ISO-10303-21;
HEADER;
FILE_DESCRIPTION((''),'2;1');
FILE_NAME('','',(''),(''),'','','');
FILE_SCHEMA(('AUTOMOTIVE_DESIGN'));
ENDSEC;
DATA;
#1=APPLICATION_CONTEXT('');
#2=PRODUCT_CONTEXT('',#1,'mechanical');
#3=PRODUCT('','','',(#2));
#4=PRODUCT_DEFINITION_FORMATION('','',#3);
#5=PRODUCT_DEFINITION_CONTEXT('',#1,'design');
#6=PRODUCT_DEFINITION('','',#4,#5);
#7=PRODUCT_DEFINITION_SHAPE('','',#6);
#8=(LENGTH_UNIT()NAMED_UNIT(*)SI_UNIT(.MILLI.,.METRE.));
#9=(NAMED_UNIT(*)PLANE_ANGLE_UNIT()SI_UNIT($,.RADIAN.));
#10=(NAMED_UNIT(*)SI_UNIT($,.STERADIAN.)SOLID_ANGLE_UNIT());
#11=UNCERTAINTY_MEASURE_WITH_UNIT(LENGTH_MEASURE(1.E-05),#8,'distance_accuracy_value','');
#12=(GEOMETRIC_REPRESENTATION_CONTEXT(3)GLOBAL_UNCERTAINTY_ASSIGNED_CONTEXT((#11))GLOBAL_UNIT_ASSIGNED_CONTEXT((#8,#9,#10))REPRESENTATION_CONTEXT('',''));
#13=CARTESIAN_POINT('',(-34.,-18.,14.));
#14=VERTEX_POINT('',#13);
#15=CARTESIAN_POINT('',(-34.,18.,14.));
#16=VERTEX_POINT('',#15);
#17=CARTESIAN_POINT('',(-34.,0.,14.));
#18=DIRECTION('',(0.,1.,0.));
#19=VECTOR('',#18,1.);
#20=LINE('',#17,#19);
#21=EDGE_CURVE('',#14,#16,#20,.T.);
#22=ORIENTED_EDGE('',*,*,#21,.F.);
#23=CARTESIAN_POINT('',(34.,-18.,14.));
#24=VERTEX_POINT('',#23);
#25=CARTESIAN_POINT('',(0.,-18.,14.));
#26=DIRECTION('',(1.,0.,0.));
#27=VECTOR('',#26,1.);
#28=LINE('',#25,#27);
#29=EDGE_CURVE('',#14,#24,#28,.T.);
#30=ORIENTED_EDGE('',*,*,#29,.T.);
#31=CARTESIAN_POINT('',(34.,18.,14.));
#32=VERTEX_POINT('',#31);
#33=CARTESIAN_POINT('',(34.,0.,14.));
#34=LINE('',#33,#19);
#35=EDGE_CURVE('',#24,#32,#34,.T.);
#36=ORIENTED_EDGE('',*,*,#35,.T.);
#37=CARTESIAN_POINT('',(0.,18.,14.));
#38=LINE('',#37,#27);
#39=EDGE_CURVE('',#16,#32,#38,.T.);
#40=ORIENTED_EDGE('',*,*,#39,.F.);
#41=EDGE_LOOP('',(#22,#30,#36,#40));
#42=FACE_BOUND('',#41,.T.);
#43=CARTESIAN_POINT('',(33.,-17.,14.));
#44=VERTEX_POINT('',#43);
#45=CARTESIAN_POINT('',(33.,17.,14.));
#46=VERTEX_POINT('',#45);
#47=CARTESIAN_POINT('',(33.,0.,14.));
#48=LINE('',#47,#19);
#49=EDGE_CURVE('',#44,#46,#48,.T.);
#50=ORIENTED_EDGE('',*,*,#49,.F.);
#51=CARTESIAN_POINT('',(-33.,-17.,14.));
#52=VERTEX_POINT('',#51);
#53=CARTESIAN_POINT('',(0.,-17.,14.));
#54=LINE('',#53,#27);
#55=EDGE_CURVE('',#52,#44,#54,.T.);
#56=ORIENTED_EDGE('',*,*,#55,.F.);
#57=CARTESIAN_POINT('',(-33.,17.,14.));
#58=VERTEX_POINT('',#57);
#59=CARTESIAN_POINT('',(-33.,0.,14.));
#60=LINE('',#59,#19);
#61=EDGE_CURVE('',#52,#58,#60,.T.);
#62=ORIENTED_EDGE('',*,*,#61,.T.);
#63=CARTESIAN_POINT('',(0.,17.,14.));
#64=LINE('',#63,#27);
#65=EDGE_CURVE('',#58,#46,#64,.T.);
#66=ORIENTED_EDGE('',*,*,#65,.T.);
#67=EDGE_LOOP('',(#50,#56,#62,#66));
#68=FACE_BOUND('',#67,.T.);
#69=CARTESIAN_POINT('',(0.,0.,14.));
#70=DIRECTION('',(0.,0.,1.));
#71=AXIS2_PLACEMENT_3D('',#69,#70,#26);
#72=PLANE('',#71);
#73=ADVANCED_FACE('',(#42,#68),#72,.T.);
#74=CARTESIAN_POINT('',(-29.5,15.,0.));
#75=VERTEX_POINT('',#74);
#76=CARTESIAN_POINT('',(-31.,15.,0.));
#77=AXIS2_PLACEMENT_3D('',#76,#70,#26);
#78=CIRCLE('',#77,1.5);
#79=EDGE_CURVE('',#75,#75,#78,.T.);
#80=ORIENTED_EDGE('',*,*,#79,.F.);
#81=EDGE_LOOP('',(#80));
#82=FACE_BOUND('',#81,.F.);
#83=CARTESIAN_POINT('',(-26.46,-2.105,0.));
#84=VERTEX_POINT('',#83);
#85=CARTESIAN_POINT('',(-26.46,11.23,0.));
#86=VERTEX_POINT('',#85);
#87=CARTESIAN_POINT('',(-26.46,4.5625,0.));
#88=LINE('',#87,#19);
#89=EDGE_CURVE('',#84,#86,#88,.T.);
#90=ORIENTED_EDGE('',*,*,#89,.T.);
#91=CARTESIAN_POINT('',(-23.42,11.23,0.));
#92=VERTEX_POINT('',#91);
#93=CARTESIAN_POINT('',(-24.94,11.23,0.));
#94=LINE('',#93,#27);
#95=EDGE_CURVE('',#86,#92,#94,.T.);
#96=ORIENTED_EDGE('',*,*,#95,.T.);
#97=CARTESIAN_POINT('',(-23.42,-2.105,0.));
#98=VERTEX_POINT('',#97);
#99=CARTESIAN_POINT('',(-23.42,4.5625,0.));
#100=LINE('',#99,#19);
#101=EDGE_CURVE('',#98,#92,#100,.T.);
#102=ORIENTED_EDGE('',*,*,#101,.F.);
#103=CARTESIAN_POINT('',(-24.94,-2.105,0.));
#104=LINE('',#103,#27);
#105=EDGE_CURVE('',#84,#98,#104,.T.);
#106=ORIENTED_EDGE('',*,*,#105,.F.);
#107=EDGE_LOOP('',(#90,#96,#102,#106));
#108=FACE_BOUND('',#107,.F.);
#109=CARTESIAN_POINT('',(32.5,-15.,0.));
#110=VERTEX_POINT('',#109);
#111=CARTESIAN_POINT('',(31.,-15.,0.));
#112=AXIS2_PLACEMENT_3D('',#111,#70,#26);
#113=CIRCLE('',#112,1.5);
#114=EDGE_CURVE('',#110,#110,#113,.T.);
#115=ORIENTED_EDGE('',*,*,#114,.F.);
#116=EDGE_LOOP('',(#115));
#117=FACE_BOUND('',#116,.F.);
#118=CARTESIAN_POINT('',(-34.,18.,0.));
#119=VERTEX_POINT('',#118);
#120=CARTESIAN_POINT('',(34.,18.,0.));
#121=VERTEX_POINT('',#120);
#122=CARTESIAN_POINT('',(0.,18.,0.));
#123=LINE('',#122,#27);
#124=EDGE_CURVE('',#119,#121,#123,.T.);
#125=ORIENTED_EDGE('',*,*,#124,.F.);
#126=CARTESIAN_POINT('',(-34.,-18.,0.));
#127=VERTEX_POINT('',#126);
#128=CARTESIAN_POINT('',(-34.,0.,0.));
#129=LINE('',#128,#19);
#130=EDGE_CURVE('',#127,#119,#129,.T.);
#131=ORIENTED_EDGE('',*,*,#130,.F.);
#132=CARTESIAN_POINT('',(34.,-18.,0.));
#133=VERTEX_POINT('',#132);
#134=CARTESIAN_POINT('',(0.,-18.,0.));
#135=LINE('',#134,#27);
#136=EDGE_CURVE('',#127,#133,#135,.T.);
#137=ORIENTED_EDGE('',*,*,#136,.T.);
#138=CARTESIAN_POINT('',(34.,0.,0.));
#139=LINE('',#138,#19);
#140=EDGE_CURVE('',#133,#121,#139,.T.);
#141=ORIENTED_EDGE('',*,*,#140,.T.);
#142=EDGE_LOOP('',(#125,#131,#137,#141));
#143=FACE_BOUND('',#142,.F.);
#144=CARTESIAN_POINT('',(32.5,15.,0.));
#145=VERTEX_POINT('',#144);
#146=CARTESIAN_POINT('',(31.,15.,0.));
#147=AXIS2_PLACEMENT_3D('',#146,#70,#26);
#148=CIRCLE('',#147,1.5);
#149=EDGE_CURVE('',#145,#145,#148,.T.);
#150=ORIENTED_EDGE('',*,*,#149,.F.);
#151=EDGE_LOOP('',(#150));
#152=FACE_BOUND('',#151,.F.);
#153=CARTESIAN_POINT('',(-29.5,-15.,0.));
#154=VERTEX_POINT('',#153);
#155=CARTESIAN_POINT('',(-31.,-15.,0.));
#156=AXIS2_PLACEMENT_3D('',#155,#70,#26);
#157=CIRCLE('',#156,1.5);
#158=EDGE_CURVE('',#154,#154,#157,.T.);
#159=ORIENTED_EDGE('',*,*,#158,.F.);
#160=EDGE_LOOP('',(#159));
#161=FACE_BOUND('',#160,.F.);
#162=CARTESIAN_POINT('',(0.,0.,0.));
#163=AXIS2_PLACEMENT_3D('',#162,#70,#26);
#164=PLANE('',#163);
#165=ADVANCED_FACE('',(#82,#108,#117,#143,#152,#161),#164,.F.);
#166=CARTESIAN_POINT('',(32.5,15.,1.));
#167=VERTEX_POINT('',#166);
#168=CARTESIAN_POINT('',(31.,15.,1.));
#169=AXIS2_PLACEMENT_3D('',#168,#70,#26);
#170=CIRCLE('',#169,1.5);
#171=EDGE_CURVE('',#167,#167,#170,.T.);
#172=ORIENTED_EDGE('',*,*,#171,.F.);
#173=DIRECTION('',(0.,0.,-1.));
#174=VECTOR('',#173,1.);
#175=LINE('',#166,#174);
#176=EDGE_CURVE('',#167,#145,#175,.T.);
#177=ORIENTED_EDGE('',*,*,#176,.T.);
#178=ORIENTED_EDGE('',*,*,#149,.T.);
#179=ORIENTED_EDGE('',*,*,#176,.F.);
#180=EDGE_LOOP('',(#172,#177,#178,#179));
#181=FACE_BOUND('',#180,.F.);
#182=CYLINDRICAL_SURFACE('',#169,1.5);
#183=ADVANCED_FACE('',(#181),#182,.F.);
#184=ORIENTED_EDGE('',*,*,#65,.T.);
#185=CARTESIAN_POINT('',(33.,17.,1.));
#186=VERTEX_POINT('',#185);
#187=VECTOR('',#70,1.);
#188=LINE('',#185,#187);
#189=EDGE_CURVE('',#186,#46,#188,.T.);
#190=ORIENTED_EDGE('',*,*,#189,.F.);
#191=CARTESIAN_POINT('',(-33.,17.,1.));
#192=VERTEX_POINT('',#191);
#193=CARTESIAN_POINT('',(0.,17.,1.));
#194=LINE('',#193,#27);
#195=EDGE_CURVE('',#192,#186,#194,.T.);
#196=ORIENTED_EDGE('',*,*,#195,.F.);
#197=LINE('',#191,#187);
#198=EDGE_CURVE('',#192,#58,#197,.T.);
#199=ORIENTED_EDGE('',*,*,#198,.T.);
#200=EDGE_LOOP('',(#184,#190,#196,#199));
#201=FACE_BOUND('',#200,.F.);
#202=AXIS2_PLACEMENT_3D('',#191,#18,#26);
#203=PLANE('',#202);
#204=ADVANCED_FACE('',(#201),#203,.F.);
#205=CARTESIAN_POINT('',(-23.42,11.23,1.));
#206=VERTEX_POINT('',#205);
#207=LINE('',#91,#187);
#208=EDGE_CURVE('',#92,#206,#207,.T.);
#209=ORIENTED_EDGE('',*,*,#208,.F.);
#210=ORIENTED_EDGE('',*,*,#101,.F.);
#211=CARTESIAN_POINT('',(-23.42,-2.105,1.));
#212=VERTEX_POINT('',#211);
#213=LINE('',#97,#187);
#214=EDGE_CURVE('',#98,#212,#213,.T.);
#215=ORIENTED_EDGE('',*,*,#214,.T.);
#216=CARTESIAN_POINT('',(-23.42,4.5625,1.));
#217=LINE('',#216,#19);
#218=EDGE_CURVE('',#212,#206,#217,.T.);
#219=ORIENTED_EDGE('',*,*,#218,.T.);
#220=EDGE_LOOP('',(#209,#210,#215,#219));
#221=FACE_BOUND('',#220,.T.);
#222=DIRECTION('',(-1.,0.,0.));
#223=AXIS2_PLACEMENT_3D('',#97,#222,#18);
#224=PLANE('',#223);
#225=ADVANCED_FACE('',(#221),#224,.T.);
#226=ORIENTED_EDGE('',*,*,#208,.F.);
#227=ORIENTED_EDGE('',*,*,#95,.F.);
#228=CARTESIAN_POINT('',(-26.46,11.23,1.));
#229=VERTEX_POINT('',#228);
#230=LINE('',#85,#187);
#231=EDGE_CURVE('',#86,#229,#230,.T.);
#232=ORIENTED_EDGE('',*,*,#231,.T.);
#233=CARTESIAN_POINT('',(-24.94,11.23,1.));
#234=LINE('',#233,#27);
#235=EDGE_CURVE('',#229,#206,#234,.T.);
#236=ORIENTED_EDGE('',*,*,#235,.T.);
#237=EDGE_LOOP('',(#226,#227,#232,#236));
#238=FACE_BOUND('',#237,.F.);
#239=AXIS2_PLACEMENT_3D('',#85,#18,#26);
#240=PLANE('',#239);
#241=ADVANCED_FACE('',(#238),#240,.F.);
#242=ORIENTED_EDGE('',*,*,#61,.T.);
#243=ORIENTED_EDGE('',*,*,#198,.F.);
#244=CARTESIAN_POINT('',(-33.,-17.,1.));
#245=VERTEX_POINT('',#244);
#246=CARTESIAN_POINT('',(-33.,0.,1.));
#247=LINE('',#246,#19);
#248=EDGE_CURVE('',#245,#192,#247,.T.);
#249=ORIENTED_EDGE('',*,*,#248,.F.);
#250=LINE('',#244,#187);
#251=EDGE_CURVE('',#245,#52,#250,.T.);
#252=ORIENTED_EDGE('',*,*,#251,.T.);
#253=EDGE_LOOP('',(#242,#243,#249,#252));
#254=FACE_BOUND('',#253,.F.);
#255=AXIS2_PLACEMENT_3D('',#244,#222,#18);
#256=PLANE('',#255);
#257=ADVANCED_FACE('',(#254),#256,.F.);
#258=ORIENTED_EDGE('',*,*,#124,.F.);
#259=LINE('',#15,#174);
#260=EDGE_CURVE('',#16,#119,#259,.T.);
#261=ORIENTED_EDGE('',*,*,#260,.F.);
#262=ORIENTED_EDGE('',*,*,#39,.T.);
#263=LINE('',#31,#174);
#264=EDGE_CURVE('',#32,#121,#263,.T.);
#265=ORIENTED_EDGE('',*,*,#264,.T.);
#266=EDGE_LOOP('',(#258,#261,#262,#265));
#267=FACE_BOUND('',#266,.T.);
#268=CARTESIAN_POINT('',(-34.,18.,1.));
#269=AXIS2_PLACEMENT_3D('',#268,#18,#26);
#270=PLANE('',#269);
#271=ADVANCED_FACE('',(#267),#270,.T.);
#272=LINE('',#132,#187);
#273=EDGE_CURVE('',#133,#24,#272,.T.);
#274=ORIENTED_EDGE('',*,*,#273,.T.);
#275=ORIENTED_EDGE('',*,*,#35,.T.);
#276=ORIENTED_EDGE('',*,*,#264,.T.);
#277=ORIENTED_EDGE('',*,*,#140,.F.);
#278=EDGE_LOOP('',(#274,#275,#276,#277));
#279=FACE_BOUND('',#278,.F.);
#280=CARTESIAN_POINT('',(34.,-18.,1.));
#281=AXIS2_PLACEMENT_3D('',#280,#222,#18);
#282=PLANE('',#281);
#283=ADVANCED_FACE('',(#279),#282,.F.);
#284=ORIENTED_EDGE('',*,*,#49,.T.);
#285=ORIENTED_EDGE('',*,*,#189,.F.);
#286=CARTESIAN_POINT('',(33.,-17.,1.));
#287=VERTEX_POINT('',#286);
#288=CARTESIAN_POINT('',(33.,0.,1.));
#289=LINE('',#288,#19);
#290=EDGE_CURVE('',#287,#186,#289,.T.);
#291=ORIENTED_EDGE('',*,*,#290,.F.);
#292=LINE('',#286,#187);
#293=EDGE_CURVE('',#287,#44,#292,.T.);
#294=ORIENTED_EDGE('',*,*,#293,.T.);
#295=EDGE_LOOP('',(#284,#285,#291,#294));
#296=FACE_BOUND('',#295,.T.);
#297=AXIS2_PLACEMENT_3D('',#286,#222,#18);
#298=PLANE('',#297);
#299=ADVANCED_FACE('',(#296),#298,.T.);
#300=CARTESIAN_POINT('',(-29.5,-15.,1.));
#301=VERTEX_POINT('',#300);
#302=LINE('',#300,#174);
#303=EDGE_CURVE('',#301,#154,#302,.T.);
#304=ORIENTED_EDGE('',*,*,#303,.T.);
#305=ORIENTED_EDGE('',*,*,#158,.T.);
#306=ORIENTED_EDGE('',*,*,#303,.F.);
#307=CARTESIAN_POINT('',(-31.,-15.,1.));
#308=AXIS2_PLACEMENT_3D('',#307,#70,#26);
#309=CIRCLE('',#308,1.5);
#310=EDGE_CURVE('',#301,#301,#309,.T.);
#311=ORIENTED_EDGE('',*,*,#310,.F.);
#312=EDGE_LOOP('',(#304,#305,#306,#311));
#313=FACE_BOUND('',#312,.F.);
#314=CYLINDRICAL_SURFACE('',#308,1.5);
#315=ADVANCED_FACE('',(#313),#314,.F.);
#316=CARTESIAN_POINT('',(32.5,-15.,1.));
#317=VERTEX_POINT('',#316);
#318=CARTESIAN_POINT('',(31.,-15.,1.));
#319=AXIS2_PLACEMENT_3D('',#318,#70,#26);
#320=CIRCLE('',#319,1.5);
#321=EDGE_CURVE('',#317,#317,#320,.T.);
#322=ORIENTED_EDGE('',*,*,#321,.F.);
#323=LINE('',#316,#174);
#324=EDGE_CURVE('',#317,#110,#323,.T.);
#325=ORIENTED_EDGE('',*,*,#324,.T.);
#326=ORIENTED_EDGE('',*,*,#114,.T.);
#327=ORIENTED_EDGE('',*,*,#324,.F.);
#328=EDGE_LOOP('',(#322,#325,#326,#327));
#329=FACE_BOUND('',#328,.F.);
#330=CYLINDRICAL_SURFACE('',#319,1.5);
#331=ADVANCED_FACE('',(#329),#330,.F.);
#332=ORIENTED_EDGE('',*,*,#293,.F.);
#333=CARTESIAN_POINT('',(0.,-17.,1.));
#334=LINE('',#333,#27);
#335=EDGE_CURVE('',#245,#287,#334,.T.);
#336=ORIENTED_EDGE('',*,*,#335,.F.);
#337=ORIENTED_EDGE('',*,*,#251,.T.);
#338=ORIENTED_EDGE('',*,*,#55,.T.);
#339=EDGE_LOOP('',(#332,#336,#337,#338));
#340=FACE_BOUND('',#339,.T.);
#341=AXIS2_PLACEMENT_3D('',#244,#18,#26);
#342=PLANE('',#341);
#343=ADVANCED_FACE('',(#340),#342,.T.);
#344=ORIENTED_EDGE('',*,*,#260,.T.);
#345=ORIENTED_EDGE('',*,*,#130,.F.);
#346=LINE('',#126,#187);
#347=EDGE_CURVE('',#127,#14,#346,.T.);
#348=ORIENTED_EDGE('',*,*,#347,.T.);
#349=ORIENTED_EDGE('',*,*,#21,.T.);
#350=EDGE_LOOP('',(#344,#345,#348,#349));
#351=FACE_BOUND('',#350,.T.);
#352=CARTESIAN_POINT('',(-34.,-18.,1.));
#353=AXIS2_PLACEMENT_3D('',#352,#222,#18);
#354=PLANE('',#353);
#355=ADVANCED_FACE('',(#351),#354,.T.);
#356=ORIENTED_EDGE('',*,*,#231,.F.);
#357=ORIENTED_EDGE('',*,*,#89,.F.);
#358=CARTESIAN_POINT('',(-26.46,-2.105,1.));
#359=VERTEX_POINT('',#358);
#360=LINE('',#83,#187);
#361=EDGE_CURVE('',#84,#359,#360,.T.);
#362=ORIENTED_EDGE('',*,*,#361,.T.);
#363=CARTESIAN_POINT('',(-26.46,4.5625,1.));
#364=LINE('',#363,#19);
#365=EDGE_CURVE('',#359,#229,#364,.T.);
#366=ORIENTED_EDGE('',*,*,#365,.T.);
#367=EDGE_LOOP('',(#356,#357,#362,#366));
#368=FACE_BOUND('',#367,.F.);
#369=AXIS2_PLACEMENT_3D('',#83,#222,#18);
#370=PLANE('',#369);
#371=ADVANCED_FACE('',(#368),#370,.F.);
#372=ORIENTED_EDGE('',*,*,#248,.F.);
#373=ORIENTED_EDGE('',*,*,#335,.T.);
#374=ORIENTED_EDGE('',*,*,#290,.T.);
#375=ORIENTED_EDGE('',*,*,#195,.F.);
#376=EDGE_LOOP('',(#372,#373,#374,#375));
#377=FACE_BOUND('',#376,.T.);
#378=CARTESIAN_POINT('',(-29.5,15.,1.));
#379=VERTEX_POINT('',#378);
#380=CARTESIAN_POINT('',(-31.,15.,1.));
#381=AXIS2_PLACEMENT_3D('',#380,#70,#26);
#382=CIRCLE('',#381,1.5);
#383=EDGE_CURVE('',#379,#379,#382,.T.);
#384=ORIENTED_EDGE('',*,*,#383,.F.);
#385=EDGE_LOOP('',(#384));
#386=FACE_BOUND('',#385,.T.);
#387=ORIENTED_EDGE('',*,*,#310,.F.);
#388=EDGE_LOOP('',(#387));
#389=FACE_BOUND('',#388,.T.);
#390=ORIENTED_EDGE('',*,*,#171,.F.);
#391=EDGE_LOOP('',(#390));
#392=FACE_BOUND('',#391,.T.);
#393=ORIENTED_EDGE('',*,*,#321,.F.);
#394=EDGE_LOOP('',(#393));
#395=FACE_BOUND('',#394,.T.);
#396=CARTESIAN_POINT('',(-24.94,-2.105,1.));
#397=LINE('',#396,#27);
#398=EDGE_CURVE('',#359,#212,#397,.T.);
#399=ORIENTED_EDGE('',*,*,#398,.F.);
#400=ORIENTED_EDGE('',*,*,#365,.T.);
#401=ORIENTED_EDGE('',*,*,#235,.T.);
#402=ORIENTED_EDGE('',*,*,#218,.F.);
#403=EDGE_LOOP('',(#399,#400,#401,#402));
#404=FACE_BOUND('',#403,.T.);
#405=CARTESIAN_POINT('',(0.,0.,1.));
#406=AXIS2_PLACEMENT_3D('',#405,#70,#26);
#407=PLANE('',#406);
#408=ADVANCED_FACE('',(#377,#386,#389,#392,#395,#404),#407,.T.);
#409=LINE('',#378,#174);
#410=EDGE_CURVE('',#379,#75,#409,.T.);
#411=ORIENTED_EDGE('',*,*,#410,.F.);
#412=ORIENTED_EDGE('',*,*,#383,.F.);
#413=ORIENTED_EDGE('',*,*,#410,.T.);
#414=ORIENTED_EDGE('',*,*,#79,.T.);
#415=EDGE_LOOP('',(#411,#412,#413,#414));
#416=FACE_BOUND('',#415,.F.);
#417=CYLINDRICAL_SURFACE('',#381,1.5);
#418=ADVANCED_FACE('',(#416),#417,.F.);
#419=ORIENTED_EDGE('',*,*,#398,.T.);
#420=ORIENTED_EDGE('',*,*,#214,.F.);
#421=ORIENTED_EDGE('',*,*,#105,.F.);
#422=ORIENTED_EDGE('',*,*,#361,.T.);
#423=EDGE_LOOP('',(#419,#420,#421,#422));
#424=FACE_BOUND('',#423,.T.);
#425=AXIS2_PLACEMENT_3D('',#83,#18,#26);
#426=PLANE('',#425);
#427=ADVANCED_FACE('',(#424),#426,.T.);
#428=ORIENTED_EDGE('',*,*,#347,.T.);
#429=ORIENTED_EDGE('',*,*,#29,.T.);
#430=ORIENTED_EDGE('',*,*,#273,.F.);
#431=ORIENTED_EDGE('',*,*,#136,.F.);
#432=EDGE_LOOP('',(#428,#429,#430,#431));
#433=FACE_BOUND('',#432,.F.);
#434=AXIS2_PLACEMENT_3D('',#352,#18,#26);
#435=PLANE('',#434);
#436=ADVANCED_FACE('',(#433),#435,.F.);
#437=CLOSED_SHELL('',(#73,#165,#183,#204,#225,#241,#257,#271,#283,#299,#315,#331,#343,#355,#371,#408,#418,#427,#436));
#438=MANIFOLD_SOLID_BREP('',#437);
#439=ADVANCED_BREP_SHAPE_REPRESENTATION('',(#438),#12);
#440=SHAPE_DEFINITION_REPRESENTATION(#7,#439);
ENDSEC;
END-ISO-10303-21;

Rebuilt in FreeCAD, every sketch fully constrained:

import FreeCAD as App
import Part
import Sketcher

V = App.Vector


def add_polygon(sketch, points):
    """Adds a closed chain of lines whose ends are joined by coincident constraints."""
    first, n = sketch.GeometryCount, len(points)
    for a, b in zip(points, points[1:] + points[:1]):
        sketch.addGeometry(Part.LineSegment(App.Vector(*a, 0), App.Vector(*b, 0)), False)
    for i in range(n):
        sketch.addConstraint(Sketcher.Constraint("Coincident", first + i, 2, first + (i + 1) % n, 1))

doc = App.newDocument("Part")
body = doc.addObject("PartDesign::Body", "Body")

sketch1 = doc.addObject("Sketcher::SketchObject", "Sketch")
body.addObject(sketch1)
sketch1.AttachmentSupport = (doc.XY_Plane, [""])
sketch1.MapMode = "FlatFace"
add_polygon(sketch1, [(-34, 18), (-34, -18), (34, -18), (34, 18)])
add_polygon(sketch1, [(-23.4, -2.1), (-26.5, -2.1), (-26.5, 11.2), (-23.4, 11.2)])
sketch1.addConstraint([
    Sketcher.Constraint("Vertical", 0),
    Sketcher.Constraint("Horizontal", 1),
    Sketcher.Constraint("Vertical", 2),
    Sketcher.Constraint("Horizontal", 3),
    Sketcher.Constraint("Horizontal", 4),
    Sketcher.Constraint("Vertical", 5),
    Sketcher.Constraint("Horizontal", 6),
    Sketcher.Constraint("Vertical", 7),
    Sketcher.Constraint("Symmetric", 0, 2, 2, 2, -1, 1),
    Sketcher.Constraint("DistanceX", 1, 1, 1, 2, 68.0),
    Sketcher.Constraint("DistanceY", 0, 2, 0, 1, 36.0),
    Sketcher.Constraint("DistanceX", 4, 2, 4, 1, 3.04),
    Sketcher.Constraint("DistanceY", 5, 1, 5, 2, 13.335),
    Sketcher.Constraint("DistanceX", 4, 2, -1, 1, 26.46),
    Sketcher.Constraint("DistanceY", -1, 1, 5, 2, 11.23),
])
pad1 = doc.addObject("PartDesign::Pad", "Pad")
body.addObject(pad1)
pad1.Profile = sketch1
pad1.Length = 1

sketch2 = doc.addObject("Sketcher::SketchObject", "Sketch001")
body.addObject(sketch2)
sketch2.AttachmentSupport = (doc.XY_Plane, [""])
sketch2.MapMode = "FlatFace"
sketch2.AttachmentOffset = App.Placement(V(0, 0, 1), App.Rotation())
add_polygon(sketch2, [(-34, 18), (-34, -18), (34, -18), (34, 18)])
add_polygon(sketch2, [(33, -17), (-33, -17), (-33, 17), (33, 17)])
sketch2.addConstraint([
    Sketcher.Constraint("Vertical", 0),
    Sketcher.Constraint("Horizontal", 1),
    Sketcher.Constraint("Vertical", 2),
    Sketcher.Constraint("Horizontal", 3),
    Sketcher.Constraint("Horizontal", 4),
    Sketcher.Constraint("Vertical", 5),
    Sketcher.Constraint("Horizontal", 6),
    Sketcher.Constraint("Vertical", 7),
    Sketcher.Constraint("Symmetric", 0, 2, 2, 2, -1, 1),
    Sketcher.Constraint("Symmetric", 4, 2, 6, 2, -1, 1),
    Sketcher.Constraint("DistanceX", 1, 1, 1, 2, 68.0),
    Sketcher.Constraint("DistanceX", 4, 2, 4, 1, 66.0),
    Sketcher.Constraint("DistanceY", 0, 2, 0, 1, 36.0),
    Sketcher.Constraint("DistanceY", 5, 1, 5, 2, 34.0),
])
pad2 = doc.addObject("PartDesign::Pad", "Pad001")
body.addObject(pad2)
pad2.Profile = sketch2
pad2.Length = 13

sketch3 = doc.addObject("Sketcher::SketchObject", "Sketch002")
body.addObject(sketch3)
sketch3.AttachmentSupport = (doc.XY_Plane, [""])
sketch3.MapMode = "FlatFace"
sketch3.AttachmentOffset = App.Placement(V(0, 0, 1), App.Rotation())
sketch3.addGeometry([
    Part.Circle(V(-31, 15, 0), V(0, 0, 1), 1.5),
    Part.Circle(V(31, 15, 0), V(0, 0, 1), 1.5),
    Part.Circle(V(31, -15, 0), V(0, 0, 1), 1.5),
    Part.Circle(V(-31, -15, 0), V(0, 0, 1), 1.5),
], False)
sketch3.addConstraint([
    Sketcher.Constraint("Equal", 0, 1),
    Sketcher.Constraint("Equal", 1, 2),
    Sketcher.Constraint("Equal", 2, 3),
    Sketcher.Constraint("Symmetric", 0, 3, 2, 3, -1, 1),
    Sketcher.Constraint("Symmetric", 1, 3, 3, 3, -1, 1),
    Sketcher.Constraint("Symmetric", 0, 3, 1, 3, -2),
    Sketcher.Constraint("Diameter", 0, 3.0),
    Sketcher.Constraint("DistanceX", 0, 3, -1, 1, 31.0),
    Sketcher.Constraint("DistanceY", -1, 1, 0, 3, 15.0),
])
pocket1 = doc.addObject("PartDesign::Pocket", "Pocket")
body.addObject(pocket1)
pocket1.Profile = sketch3
pocket1.Type = "ThroughAll"

doc.recompute()
